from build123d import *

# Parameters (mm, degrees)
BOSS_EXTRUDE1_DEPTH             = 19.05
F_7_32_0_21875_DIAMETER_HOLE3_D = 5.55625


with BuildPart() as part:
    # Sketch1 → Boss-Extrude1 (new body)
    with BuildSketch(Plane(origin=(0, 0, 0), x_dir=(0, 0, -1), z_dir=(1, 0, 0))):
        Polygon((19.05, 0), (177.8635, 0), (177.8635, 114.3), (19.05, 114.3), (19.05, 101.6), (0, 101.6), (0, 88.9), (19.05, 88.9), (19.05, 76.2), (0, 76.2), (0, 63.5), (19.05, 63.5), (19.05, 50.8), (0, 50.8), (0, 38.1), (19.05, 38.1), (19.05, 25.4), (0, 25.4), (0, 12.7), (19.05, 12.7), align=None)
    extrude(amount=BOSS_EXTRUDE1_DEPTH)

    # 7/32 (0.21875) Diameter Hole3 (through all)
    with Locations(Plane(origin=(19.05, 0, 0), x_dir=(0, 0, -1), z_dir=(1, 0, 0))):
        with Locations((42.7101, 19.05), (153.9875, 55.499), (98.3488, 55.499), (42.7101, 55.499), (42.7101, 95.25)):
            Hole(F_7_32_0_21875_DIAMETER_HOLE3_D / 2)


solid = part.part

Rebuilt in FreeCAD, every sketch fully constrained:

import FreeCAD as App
import Part
import Sketcher

V = App.Vector
Q = App.Units.Quantity


def add_polygon(sketch, points):
    """Adds a closed chain of lines whose ends are joined by coincident constraints."""
    first, n = sketch.GeometryCount, len(points)
    for a, b in zip(points, points[1:] + points[:1]):
        sketch.addGeometry(Part.LineSegment(App.Vector(*a, 0), App.Vector(*b, 0)), False)
    for i in range(n):
        sketch.addConstraint(Sketcher.Constraint("Coincident", first + i, 2, first + (i + 1) % n, 1))

doc = App.newDocument("Part")
body = doc.addObject("PartDesign::Body", "Body")

# Sketch on YZ plane
sketch1 = body.newObject("Sketcher::SketchObject", "Sketch")
sketch1.AttachmentSupport = (doc.getObject("YZ_Plane"), [""])
sketch1.MapMode = "FlatFace"
add_polygon(sketch1, [(0, -19.05), (0, -177.8635), (114.3, -177.8635), (114.3, -19.05), (101.6, -19.05), (101.6, 0), (88.9, 0), (88.9, -19.05), (76.2, -19.05), (76.2, 0), (63.5, 0), (63.5, -19.05), (50.8, -19.05), (50.8, 0), (38.1, 0), (38.1, -19.05), (25.4, -19.05), (25.4, 0), (12.7, 0), (12.7, -19.05)])  # lines 0-19
sketch1.addConstraint([
    Sketcher.Constraint("Vertical", 0),
    Sketcher.Constraint("Horizontal", 1),
    Sketcher.Constraint("Vertical", 2),
    Sketcher.Constraint("Horizontal", 3),
    Sketcher.Constraint("Vertical", 4),
    Sketcher.Constraint("Horizontal", 5),
    Sketcher.Constraint("Vertical", 6),
    Sketcher.Constraint("Horizontal", 7),
    Sketcher.Constraint("Vertical", 8),
    Sketcher.Constraint("Horizontal", 9),
    Sketcher.Constraint("Vertical", 10),
    Sketcher.Constraint("Horizontal", 11),
    Sketcher.Constraint("Vertical", 12),
    Sketcher.Constraint("Horizontal", 13),
    Sketcher.Constraint("Vertical", 14),
    Sketcher.Constraint("Horizontal", 15),
    Sketcher.Constraint("Vertical", 16),
    Sketcher.Constraint("Horizontal", 17),
    Sketcher.Constraint("Vertical", 18),
    Sketcher.Constraint("Horizontal", 19),
    Sketcher.Constraint("PointOnObject", 0, 2, -2),
    Sketcher.Constraint("PointOnObject", 4, 2, -1),
    Sketcher.Constraint("PointOnObject", 8, 2, -1),
    Sketcher.Constraint("PointOnObject", 12, 2, -1),
    Sketcher.Constraint("PointOnObject", 16, 2, -1),
    Sketcher.Constraint("Horizontal", 3, 2, 6, 2),
    Sketcher.Constraint("Horizontal", 7, 2, 10, 2),
    Sketcher.Constraint("Horizontal", 11, 2, 14, 2),
    Sketcher.Constraint("Horizontal", 15, 2, 18, 2),
    Sketcher.Constraint("Equal", 3, 5),
    Sketcher.Constraint("Equal", 5, 7),
    Sketcher.Constraint("Equal", 7, 9),
    Sketcher.Constraint("Equal", 9, 11),
    Sketcher.Constraint("Equal", 11, 13),
    Sketcher.Constraint("Equal", 13, 15),
    Sketcher.Constraint("Equal", 15, 17),
    Sketcher.Constraint("Equal", 17, 19),
    Sketcher.Constraint("DistanceX", 1, 1, 1, 2, Q("4.5 in")),
    Sketcher.Constraint("DistanceY", 4, 1, 4, 2, Q("0.75 in")),
    Sketcher.Constraint("DistanceY", 0, 2, 0, 1, Q("6.2525 in")),
])
pad1 = body.newObject("PartDesign::Pad", "Pad")
pad1.Profile = sketch1
pad1.Length = Q("0.75 in")

# Sketch on YZ plane
sketch2 = body.newObject("Sketcher::SketchObject", "Sketch001")
sketch2.AttachmentSupport = (doc.getObject("YZ_Plane"), [""])
sketch2.MapMode = "FlatFace"
sketch2.AttachmentOffset = App.Placement(V(0, 0, 0.75 * 25.4), App.Rotation())
sketch2.addGeometry([
    Part.Circle(V(19.05, -42.7101, 0), V(0, 0, 1), 2.778125),  # 0
    Part.Circle(V(55.499, -153.9875, 0), V(0, 0, 1), 2.778125),  # 1
    Part.Circle(V(55.499, -98.3488, 0), V(0, 0, 1), 2.778125),  # 2
    Part.Circle(V(55.499, -42.7101, 0), V(0, 0, 1), 2.778125),  # 3
    Part.Circle(V(95.25, -42.7101, 0), V(0, 0, 1), 2.778125),  # 4
], False)
sketch2.addConstraint([
    Sketcher.Constraint("Equal", 0, 1),
    Sketcher.Constraint("Equal", 1, 2),
    Sketcher.Constraint("Equal", 2, 3),
    Sketcher.Constraint("Equal", 3, 4),
    Sketcher.Constraint("Horizontal", 0, 3, 3, 3),
    Sketcher.Constraint("Horizontal", 3, 3, 4, 3),
    Sketcher.Constraint("Vertical", 1, 3, 2, 3),
    Sketcher.Constraint("Vertical", 2, 3, 3, 3),
    Sketcher.Constraint("Diameter", 0, Q("0.21875 in")),
    Sketcher.Constraint("DistanceX", 0, 3, 4, 3, Q("3 in")),
    Sketcher.Constraint("DistanceX", -1, 1, 0, 3, Q("0.75 in")),
    Sketcher.Constraint("DistanceX", -1, 1, 1, 3, Q("2.185 in")),
    Sketcher.Constraint("DistanceY", 1, 3, -1, 1, Q("6.0625 in")),
    Sketcher.Constraint("DistanceY", 2, 3, -1, 1, Q("3.872 in")),
    Sketcher.Constraint("DistanceY", 1, 3, 0, 3, Q("4.381 in")),
])
doc.recompute()
hole = body.newObject("PartDesign::Hole", "Hole")
hole.Profile = sketch2
hole.ThreadType = "None"
hole.Diameter = Q("0.21875 in")
hole.DepthType = "ThroughAll"

doc.recompute()
